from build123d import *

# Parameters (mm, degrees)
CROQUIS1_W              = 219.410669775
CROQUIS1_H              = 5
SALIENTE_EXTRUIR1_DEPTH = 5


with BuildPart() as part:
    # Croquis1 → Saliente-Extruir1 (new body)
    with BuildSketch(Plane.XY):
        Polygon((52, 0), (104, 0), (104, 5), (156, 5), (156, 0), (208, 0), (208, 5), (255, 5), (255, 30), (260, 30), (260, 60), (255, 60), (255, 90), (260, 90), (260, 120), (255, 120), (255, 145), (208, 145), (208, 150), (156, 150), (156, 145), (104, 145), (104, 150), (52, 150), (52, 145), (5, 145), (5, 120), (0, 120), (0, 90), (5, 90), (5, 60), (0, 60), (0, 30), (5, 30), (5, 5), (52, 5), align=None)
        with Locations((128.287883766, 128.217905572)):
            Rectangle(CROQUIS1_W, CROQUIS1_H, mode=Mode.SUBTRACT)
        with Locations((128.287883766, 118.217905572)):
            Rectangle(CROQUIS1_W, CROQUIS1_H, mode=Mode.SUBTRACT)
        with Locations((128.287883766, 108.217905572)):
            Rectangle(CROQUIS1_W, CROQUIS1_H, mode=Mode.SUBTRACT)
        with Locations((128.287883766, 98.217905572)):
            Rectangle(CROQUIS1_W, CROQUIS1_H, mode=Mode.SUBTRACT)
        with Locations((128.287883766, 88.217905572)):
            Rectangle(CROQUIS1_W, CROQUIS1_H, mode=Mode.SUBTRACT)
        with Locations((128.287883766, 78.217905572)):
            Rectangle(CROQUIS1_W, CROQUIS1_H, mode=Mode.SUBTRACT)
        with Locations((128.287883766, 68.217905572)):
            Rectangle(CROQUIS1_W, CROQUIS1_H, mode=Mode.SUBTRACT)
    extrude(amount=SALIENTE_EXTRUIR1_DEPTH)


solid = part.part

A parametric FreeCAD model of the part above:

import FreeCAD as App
import Part
import Sketcher

V = App.Vector

doc = App.newDocument("Part")
params = doc.addObject("Spreadsheet::Sheet", "Params")
for row, (alias, value) in enumerate([
    ("sketch1_width", "52 mm"),
    ("sketch1_width2", "47 mm"),
    ("sketch1_width3", "5 mm"),
    ("sketch1_height", "25 mm"),
    ("sketch1_height2", "30 mm"),
    ("pad1_length", "5 mm"),
], start=1):
    params.set(f"A{row}", alias)
    params.set(f"B{row}", "=" + value)
    params.setAlias(f"B{row}", alias)

body = doc.addObject("PartDesign::Body", "Body")

# Sketch on XY plane
sketch1 = body.newObject("Sketcher::SketchObject", "Sketch")
sketch1.AttachmentSupport = (doc.getObject("XY_Plane"), [""])
sketch1.MapMode = "FlatFace"
sketch1.addGeometry([
    Part.LineSegment(V(52, 0, 0), V(104, 0, 0)),  # 0
    Part.LineSegment(V(104, 0, 0), V(104, 5, 0)),  # 1
    Part.LineSegment(V(104, 5, 0), V(156, 5, 0)),  # 2
    Part.LineSegment(V(156, 5, 0), V(156, 0, 0)),  # 3
    Part.LineSegment(V(156, 0, 0), V(208, 0, 0)),  # 4
    Part.LineSegment(V(208, 0, 0), V(208, 5, 0)),  # 5
    Part.LineSegment(V(208, 5, 0), V(255, 5, 0)),  # 6
    Part.LineSegment(V(255, 5, 0), V(255, 30, 0)),  # 7
    Part.LineSegment(V(255, 30, 0), V(260, 30, 0)),  # 8
    Part.LineSegment(V(260, 30, 0), V(260, 60, 0)),  # 9
    Part.LineSegment(V(260, 60, 0), V(255, 60, 0)),  # 10
    Part.LineSegment(V(255, 60, 0), V(255, 90, 0)),  # 11
    Part.LineSegment(V(255, 90, 0), V(260, 90, 0)),  # 12
    Part.LineSegment(V(260, 90, 0), V(260, 120, 0)),  # 13
    Part.LineSegment(V(260, 120, 0), V(255, 120, 0)),  # 14
    Part.LineSegment(V(255, 120, 0), V(255, 145, 0)),  # 15
    Part.LineSegment(V(255, 145, 0), V(208, 145, 0)),  # 16
    Part.LineSegment(V(208, 145, 0), V(208, 150, 0)),  # 17
    Part.LineSegment(V(208, 150, 0), V(156, 150, 0)),  # 18
    Part.LineSegment(V(156, 150, 0), V(156, 145, 0)),  # 19
    Part.LineSegment(V(156, 145, 0), V(104, 145, 0)),  # 20
    Part.LineSegment(V(104, 145, 0), V(104, 150, 0)),  # 21
    Part.LineSegment(V(104, 150, 0), V(52, 150, 0)),  # 22
    Part.LineSegment(V(52, 150, 0), V(52, 145, 0)),  # 23
    Part.LineSegment(V(52, 145, 0), V(5, 145, 0)),  # 24
    Part.LineSegment(V(5, 145, 0), V(5, 120, 0)),  # 25
    Part.LineSegment(V(5, 120, 0), V(0, 120, 0)),  # 26
    Part.LineSegment(V(0, 120, 0), V(0, 90, 0)),  # 27
    Part.LineSegment(V(0, 90, 0), V(5, 90, 0)),  # 28
    Part.LineSegment(V(5, 90, 0), V(5, 60, 0)),  # 29
    Part.LineSegment(V(5, 60, 0), V(0, 60, 0)),  # 30
    Part.LineSegment(V(0, 60, 0), V(0, 30, 0)),  # 31
    Part.LineSegment(V(0, 30, 0), V(5, 30, 0)),  # 32
    Part.LineSegment(V(5, 30, 0), V(5, 5, 0)),  # 33
    Part.LineSegment(V(5, 5, 0), V(52, 5, 0)),  # 34
    Part.LineSegment(V(52, 5, 0), V(52, 0, 0)),  # 35
    Part.LineSegment(V(238, 66, 0), V(19, 66, 0)),  # 36
    Part.LineSegment(V(19, 66, 0), V(19, 71, 0)),  # 37
    Part.LineSegment(V(19, 71, 0), V(238, 71, 0)),  # 38
    Part.LineSegment(V(238, 71, 0), V(238, 66, 0)),  # 39
    Part.LineSegment(V(238, 76, 0), V(19, 76, 0)),  # 40
    Part.LineSegment(V(19, 76, 0), V(19, 81, 0)),  # 41
    Part.LineSegment(V(19, 81, 0), V(238, 81, 0)),  # 42
    Part.LineSegment(V(238, 81, 0), V(238, 76, 0)),  # 43
    Part.LineSegment(V(238, 86, 0), V(19, 86, 0)),  # 44
    Part.LineSegment(V(19, 86, 0), V(19, 91, 0)),  # 45
    Part.LineSegment(V(19, 91, 0), V(238, 91, 0)),  # 46
    Part.LineSegment(V(238, 91, 0), V(238, 86, 0)),  # 47
    Part.LineSegment(V(238, 96, 0), V(19, 96, 0)),  # 48
    Part.LineSegment(V(19, 96, 0), V(19, 101, 0)),  # 49
    Part.LineSegment(V(19, 101, 0), V(238, 101, 0)),  # 50
    Part.LineSegment(V(238, 101, 0), V(238, 96, 0)),  # 51
    Part.LineSegment(V(238, 106, 0), V(19, 106, 0)),  # 52
    Part.LineSegment(V(19, 106, 0), V(19, 111, 0)),  # 53
    Part.LineSegment(V(19, 111, 0), V(238, 111, 0)),  # 54
    Part.LineSegment(V(238, 111, 0), V(238, 106, 0)),  # 55
    Part.LineSegment(V(238, 116, 0), V(19, 116, 0)),  # 56
    Part.LineSegment(V(19, 116, 0), V(19, 121, 0)),  # 57
    Part.LineSegment(V(19, 121, 0), V(238, 121, 0)),  # 58
    Part.LineSegment(V(238, 121, 0), V(238, 116, 0)),  # 59
    Part.LineSegment(V(238, 126, 0), V(19, 126, 0)),  # 60
    Part.LineSegment(V(19, 126, 0), V(19, 131, 0)),  # 61
    Part.LineSegment(V(19, 131, 0), V(238, 131, 0)),  # 62
    Part.LineSegment(V(238, 131, 0), V(238, 126, 0)),  # 63
], False)
sketch1.addConstraint([
    Sketcher.Constraint("Coincident", 0, 2, 1, 1),
    Sketcher.Constraint("Coincident", 1, 2, 2, 1),
    Sketcher.Constraint("Coincident", 2, 2, 3, 1),
    Sketcher.Constraint("Coincident", 3, 2, 4, 1),
    Sketcher.Constraint("Coincident", 4, 2, 5, 1),
    Sketcher.Constraint("Coincident", 5, 2, 6, 1),
    Sketcher.Constraint("Coincident", 6, 2, 7, 1),
    Sketcher.Constraint("Coincident", 7, 2, 8, 1),
    Sketcher.Constraint("Coincident", 8, 2, 9, 1),
    Sketcher.Constraint("Coincident", 9, 2, 10, 1),
    Sketcher.Constraint("Coincident", 10, 2, 11, 1),
    Sketcher.Constraint("Coincident", 11, 2, 12, 1),
    Sketcher.Constraint("Coincident", 12, 2, 13, 1),
    Sketcher.Constraint("Coincident", 13, 2, 14, 1),
    Sketcher.Constraint("Coincident", 14, 2, 15, 1),
    Sketcher.Constraint("Coincident", 15, 2, 16, 1),
    Sketcher.Constraint("Coincident", 16, 2, 17, 1),
    Sketcher.Constraint("Coincident", 17, 2, 18, 1),
    Sketcher.Constraint("Coincident", 18, 2, 19, 1),
    Sketcher.Constraint("Coincident", 19, 2, 20, 1),
    Sketcher.Constraint("Coincident", 20, 2, 21, 1),
    Sketcher.Constraint("Coincident", 21, 2, 22, 1),
    Sketcher.Constraint("Coincident", 22, 2, 23, 1),
    Sketcher.Constraint("Coincident", 23, 2, 24, 1),
    Sketcher.Constraint("Coincident", 24, 2, 25, 1),
    Sketcher.Constraint("Coincident", 25, 2, 26, 1),
    Sketcher.Constraint("Coincident", 26, 2, 27, 1),
    Sketcher.Constraint("Coincident", 27, 2, 28, 1),
    Sketcher.Constraint("Coincident", 28, 2, 29, 1),
    Sketcher.Constraint("Coincident", 29, 2, 30, 1),
    Sketcher.Constraint("Coincident", 30, 2, 31, 1),
    Sketcher.Constraint("Coincident", 31, 2, 32, 1),
    Sketcher.Constraint("Coincident", 32, 2, 33, 1),
    Sketcher.Constraint("Coincident", 33, 2, 34, 1),
    Sketcher.Constraint("Coincident", 34, 2, 35, 1),
    Sketcher.Constraint("Coincident", 35, 2, 0, 1),
    Sketcher.Constraint("Coincident", 36, 2, 37, 1),
    Sketcher.Constraint("Coincident", 37, 2, 38, 1),
    Sketcher.Constraint("Coincident", 38, 2, 39, 1),
    Sketcher.Constraint("Coincident", 39, 2, 36, 1),
    Sketcher.Constraint("Coincident", 40, 2, 41, 1),
    Sketcher.Constraint("Coincident", 41, 2, 42, 1),
    Sketcher.Constraint("Coincident", 42, 2, 43, 1),
    Sketcher.Constraint("Coincident", 43, 2, 40, 1),
    Sketcher.Constraint("Coincident", 44, 2, 45, 1),
    Sketcher.Constraint("Coincident", 45, 2, 46, 1),
    Sketcher.Constraint("Coincident", 46, 2, 47, 1),
    Sketcher.Constraint("Coincident", 47, 2, 44, 1),
    Sketcher.Constraint("Coincident", 48, 2, 49, 1),
    Sketcher.Constraint("Coincident", 49, 2, 50, 1),
    Sketcher.Constraint("Coincident", 50, 2, 51, 1),
    Sketcher.Constraint("Coincident", 51, 2, 48, 1),
    Sketcher.Constraint("Coincident", 52, 2, 53, 1),
    Sketcher.Constraint("Coincident", 53, 2, 54, 1),
    Sketcher.Constraint("Coincident", 54, 2, 55, 1),
    Sketcher.Constraint("Coincident", 55, 2, 52, 1),
    Sketcher.Constraint("Coincident", 56, 2, 57, 1),
    Sketcher.Constraint("Coincident", 57, 2, 58, 1),
    Sketcher.Constraint("Coincident", 58, 2, 59, 1),
    Sketcher.Constraint("Coincident", 59, 2, 56, 1),
    Sketcher.Constraint("Coincident", 60, 2, 61, 1),
    Sketcher.Constraint("Coincident", 61, 2, 62, 1),
    Sketcher.Constraint("Coincident", 62, 2, 63, 1),
    Sketcher.Constraint("Coincident", 63, 2, 60, 1),
    Sketcher.Constraint("Horizontal", 0),
    Sketcher.Constraint("Vertical", 1),
    Sketcher.Constraint("Horizontal", 2),
    Sketcher.Constraint("Vertical", 3),
    Sketcher.Constraint("Horizontal", 4),
    Sketcher.Constraint("Vertical", 5),
    Sketcher.Constraint("Horizontal", 6),
    Sketcher.Constraint("Vertical", 7),
    Sketcher.Constraint("Horizontal", 8),
    Sketcher.Constraint("Vertical", 9),
    Sketcher.Constraint("Horizontal", 10),
    Sketcher.Constraint("Vertical", 11),
    Sketcher.Constraint("Horizontal", 12),
    Sketcher.Constraint("Vertical", 13),
    Sketcher.Constraint("Horizontal", 14),
    Sketcher.Constraint("Vertical", 15),
    Sketcher.Constraint("Horizontal", 16),
    Sketcher.Constraint("Vertical", 17),
    Sketcher.Constraint("Horizontal", 18),
    Sketcher.Constraint("Vertical", 19),
    Sketcher.Constraint("Horizontal", 20),
    Sketcher.Constraint("Vertical", 21),
    Sketcher.Constraint("Horizontal", 22),
    Sketcher.Constraint("Vertical", 23),
    Sketcher.Constraint("Horizontal", 24),
    Sketcher.Constraint("Vertical", 25),
    Sketcher.Constraint("Horizontal", 26),
    Sketcher.Constraint("Vertical", 27),
    Sketcher.Constraint("Horizontal", 28),
    Sketcher.Constraint("Vertical", 29),
    Sketcher.Constraint("Horizontal", 30),
    Sketcher.Constraint("Vertical", 31),
    Sketcher.Constraint("Horizontal", 32),
    Sketcher.Constraint("Vertical", 33),
    Sketcher.Constraint("Horizontal", 34),
    Sketcher.Constraint("Vertical", 35),
    Sketcher.Constraint("Horizontal", 36),
    Sketcher.Constraint("Vertical", 37),
    Sketcher.Constraint("Horizontal", 38),
    Sketcher.Constraint("Vertical", 39),
    Sketcher.Constraint("Horizontal", 40),
    Sketcher.Constraint("Vertical", 41),
    Sketcher.Constraint("Horizontal", 42),
    Sketcher.Constraint("Vertical", 43),
    Sketcher.Constraint("Horizontal", 44),
    Sketcher.Constraint("Vertical", 45),
    Sketcher.Constraint("Horizontal", 46),
    Sketcher.Constraint("Vertical", 47),
    Sketcher.Constraint("Horizontal", 48),
    Sketcher.Constraint("Vertical", 49),
    Sketcher.Constraint("Horizontal", 50),
    Sketcher.Constraint("Vertical", 51),
    Sketcher.Constraint("Horizontal", 52),
    Sketcher.Constraint("Vertical", 53),
    Sketcher.Constraint("Horizontal", 54),
    Sketcher.Constraint("Vertical", 55),
    Sketcher.Constraint("Horizontal", 56),
    Sketcher.Constraint("Vertical", 57),
    Sketcher.Constraint("Horizontal", 58),
    Sketcher.Constraint("Vertical", 59),
    Sketcher.Constraint("Horizontal", 60),
    Sketcher.Constraint("Vertical", 61),
    Sketcher.Constraint("Horizontal", 62),
    Sketcher.Constraint("Vertical", 63),
    Sketcher.Constraint("PointOnObject", 0, 2, -1),
    Sketcher.Constraint("PointOnObject", 3, 2, -1),
    Sketcher.Constraint("PointOnObject", 26, 2, -2),
    Sketcher.Constraint("PointOnObject", 30, 2, -2),
    Sketcher.Constraint("Horizontal", 2, 2, 5, 2),
    Sketcher.Constraint("Horizontal", 16, 2, 19, 2),
    Sketcher.Constraint("Horizontal", 18, 2, 21, 2),
    Sketcher.Constraint("Horizontal", 20, 2, 23, 2),
    Sketcher.Constraint("Horizontal", 14, 2, 25, 2),
    Sketcher.Constraint("Horizontal", 12, 2, 27, 2),
    Sketcher.Constraint("Horizontal", 10, 2, 29, 2),
    Sketcher.Constraint("Horizontal", 8, 2, 31, 2),
    Sketcher.Constraint("Horizontal", 6, 2, 33, 2),
    Sketcher.Constraint("Vertical", 7, 2, 10, 2),
    Sketcher.Constraint("Vertical", 9, 2, 12, 2),
    Sketcher.Constraint("Vertical", 11, 2, 14, 2),
    Sketcher.Constraint("Vertical", 5, 2, 16, 2),
    Sketcher.Constraint("Vertical", 3, 2, 18, 2),
    Sketcher.Constraint("Vertical", 1, 2, 20, 2),
    Sketcher.Constraint("Vertical", 25, 2, 28, 2),
    Sketcher.Constraint("Vertical", 29, 2, 32, 2),
    Sketcher.Constraint("Vertical", 23, 2, 34, 2),
    Sketcher.Constraint("Vertical", 37, 2, 40, 2),
    Sketcher.Constraint("Vertical", 39, 2, 42, 2),
    Sketcher.Constraint("Vertical", 41, 2, 44, 2),
    Sketcher.Constraint("Vertical", 43, 2, 46, 2),
    Sketcher.Constraint("Vertical", 45, 2, 48, 2),
    Sketcher.Constraint("Vertical", 47, 2, 50, 2),
    Sketcher.Constraint("Vertical", 49, 2, 52, 2),
    Sketcher.Constraint("Vertical", 51, 2, 54, 2),
    Sketcher.Constraint("Vertical", 53, 2, 56, 2),
    Sketcher.Constraint("Vertical", 55, 2, 58, 2),
    Sketcher.Constraint("Vertical", 57, 2, 60, 2),
    Sketcher.Constraint("Vertical", 59, 2, 62, 2),
    Sketcher.Constraint("Equal", 0, 2),
    Sketcher.Constraint("Equal", 2, 4),
    Sketcher.Constraint("Equal", 16, 24),
    Sketcher.Constraint("Equal", 14, 26),
    Sketcher.Constraint("Equal", 32, 1),
    Sketcher.Constraint("Equal", 9, 11),
    Sketcher.Constraint("Equal", 11, 13),
    Sketcher.Constraint("Equal", 7, 15),
    Sketcher.Constraint("Equal", 5, 17),
    Sketcher.Constraint("Equal", 35, 37),
    Sketcher.Constraint("Equal", 39, 41),
    Sketcher.Constraint("Equal", 43, 45),
    Sketcher.Constraint("Equal", 47, 49),
    Sketcher.Constraint("Equal", 51, 53),
    Sketcher.Constraint("Equal", 55, 57),
    Sketcher.Constraint("Equal", 59, 61),
    Sketcher.Constraint("DistanceX", 0, 1, 0, 2, 52.0),
    Sketcher.Constraint("DistanceX", 6, 1, 6, 2, 47.0),
    Sketcher.Constraint("DistanceX", 8, 1, 8, 2, 5.0),
    Sketcher.Constraint("DistanceY", 7, 1, 7, 2, 25.0),
    Sketcher.Constraint("DistanceY", 9, 1, 9, 2, 30.0),
    Sketcher.Constraint("DistanceX", 36, 2, 36, 1, 219.41067),
    Sketcher.Constraint("DistanceX", -1, 1, 36, 2, 18.582549),
    Sketcher.Constraint("DistanceY", -1, 1, 36, 2, 65.717906),
    Sketcher.Constraint("DistanceY", -1, 1, 40, 2, 75.717906),
    Sketcher.Constraint("DistanceY", -1, 1, 44, 2, 85.717906),
    Sketcher.Constraint("DistanceY", -1, 1, 48, 2, 95.717906),
    Sketcher.Constraint("DistanceY", -1, 1, 52, 2, 105.717906),
    Sketcher.Constraint("DistanceY", -1, 1, 56, 2, 115.717906),
    Sketcher.Constraint("DistanceY", -1, 1, 60, 2, 125.717906),
])
sketch1.setExpression("Constraints[178]", "Params.sketch1_width")
sketch1.setExpression("Constraints[179]", "Params.sketch1_width2")
sketch1.setExpression("Constraints[180]", "Params.sketch1_width3")
sketch1.setExpression("Constraints[181]", "Params.sketch1_height")
sketch1.setExpression("Constraints[182]", "Params.sketch1_height2")
pad1 = body.newObject("PartDesign::Pad", "Pad")
pad1.Profile = sketch1
pad1.setExpression("Length", "Params.pad1_length")

doc.recompute()
